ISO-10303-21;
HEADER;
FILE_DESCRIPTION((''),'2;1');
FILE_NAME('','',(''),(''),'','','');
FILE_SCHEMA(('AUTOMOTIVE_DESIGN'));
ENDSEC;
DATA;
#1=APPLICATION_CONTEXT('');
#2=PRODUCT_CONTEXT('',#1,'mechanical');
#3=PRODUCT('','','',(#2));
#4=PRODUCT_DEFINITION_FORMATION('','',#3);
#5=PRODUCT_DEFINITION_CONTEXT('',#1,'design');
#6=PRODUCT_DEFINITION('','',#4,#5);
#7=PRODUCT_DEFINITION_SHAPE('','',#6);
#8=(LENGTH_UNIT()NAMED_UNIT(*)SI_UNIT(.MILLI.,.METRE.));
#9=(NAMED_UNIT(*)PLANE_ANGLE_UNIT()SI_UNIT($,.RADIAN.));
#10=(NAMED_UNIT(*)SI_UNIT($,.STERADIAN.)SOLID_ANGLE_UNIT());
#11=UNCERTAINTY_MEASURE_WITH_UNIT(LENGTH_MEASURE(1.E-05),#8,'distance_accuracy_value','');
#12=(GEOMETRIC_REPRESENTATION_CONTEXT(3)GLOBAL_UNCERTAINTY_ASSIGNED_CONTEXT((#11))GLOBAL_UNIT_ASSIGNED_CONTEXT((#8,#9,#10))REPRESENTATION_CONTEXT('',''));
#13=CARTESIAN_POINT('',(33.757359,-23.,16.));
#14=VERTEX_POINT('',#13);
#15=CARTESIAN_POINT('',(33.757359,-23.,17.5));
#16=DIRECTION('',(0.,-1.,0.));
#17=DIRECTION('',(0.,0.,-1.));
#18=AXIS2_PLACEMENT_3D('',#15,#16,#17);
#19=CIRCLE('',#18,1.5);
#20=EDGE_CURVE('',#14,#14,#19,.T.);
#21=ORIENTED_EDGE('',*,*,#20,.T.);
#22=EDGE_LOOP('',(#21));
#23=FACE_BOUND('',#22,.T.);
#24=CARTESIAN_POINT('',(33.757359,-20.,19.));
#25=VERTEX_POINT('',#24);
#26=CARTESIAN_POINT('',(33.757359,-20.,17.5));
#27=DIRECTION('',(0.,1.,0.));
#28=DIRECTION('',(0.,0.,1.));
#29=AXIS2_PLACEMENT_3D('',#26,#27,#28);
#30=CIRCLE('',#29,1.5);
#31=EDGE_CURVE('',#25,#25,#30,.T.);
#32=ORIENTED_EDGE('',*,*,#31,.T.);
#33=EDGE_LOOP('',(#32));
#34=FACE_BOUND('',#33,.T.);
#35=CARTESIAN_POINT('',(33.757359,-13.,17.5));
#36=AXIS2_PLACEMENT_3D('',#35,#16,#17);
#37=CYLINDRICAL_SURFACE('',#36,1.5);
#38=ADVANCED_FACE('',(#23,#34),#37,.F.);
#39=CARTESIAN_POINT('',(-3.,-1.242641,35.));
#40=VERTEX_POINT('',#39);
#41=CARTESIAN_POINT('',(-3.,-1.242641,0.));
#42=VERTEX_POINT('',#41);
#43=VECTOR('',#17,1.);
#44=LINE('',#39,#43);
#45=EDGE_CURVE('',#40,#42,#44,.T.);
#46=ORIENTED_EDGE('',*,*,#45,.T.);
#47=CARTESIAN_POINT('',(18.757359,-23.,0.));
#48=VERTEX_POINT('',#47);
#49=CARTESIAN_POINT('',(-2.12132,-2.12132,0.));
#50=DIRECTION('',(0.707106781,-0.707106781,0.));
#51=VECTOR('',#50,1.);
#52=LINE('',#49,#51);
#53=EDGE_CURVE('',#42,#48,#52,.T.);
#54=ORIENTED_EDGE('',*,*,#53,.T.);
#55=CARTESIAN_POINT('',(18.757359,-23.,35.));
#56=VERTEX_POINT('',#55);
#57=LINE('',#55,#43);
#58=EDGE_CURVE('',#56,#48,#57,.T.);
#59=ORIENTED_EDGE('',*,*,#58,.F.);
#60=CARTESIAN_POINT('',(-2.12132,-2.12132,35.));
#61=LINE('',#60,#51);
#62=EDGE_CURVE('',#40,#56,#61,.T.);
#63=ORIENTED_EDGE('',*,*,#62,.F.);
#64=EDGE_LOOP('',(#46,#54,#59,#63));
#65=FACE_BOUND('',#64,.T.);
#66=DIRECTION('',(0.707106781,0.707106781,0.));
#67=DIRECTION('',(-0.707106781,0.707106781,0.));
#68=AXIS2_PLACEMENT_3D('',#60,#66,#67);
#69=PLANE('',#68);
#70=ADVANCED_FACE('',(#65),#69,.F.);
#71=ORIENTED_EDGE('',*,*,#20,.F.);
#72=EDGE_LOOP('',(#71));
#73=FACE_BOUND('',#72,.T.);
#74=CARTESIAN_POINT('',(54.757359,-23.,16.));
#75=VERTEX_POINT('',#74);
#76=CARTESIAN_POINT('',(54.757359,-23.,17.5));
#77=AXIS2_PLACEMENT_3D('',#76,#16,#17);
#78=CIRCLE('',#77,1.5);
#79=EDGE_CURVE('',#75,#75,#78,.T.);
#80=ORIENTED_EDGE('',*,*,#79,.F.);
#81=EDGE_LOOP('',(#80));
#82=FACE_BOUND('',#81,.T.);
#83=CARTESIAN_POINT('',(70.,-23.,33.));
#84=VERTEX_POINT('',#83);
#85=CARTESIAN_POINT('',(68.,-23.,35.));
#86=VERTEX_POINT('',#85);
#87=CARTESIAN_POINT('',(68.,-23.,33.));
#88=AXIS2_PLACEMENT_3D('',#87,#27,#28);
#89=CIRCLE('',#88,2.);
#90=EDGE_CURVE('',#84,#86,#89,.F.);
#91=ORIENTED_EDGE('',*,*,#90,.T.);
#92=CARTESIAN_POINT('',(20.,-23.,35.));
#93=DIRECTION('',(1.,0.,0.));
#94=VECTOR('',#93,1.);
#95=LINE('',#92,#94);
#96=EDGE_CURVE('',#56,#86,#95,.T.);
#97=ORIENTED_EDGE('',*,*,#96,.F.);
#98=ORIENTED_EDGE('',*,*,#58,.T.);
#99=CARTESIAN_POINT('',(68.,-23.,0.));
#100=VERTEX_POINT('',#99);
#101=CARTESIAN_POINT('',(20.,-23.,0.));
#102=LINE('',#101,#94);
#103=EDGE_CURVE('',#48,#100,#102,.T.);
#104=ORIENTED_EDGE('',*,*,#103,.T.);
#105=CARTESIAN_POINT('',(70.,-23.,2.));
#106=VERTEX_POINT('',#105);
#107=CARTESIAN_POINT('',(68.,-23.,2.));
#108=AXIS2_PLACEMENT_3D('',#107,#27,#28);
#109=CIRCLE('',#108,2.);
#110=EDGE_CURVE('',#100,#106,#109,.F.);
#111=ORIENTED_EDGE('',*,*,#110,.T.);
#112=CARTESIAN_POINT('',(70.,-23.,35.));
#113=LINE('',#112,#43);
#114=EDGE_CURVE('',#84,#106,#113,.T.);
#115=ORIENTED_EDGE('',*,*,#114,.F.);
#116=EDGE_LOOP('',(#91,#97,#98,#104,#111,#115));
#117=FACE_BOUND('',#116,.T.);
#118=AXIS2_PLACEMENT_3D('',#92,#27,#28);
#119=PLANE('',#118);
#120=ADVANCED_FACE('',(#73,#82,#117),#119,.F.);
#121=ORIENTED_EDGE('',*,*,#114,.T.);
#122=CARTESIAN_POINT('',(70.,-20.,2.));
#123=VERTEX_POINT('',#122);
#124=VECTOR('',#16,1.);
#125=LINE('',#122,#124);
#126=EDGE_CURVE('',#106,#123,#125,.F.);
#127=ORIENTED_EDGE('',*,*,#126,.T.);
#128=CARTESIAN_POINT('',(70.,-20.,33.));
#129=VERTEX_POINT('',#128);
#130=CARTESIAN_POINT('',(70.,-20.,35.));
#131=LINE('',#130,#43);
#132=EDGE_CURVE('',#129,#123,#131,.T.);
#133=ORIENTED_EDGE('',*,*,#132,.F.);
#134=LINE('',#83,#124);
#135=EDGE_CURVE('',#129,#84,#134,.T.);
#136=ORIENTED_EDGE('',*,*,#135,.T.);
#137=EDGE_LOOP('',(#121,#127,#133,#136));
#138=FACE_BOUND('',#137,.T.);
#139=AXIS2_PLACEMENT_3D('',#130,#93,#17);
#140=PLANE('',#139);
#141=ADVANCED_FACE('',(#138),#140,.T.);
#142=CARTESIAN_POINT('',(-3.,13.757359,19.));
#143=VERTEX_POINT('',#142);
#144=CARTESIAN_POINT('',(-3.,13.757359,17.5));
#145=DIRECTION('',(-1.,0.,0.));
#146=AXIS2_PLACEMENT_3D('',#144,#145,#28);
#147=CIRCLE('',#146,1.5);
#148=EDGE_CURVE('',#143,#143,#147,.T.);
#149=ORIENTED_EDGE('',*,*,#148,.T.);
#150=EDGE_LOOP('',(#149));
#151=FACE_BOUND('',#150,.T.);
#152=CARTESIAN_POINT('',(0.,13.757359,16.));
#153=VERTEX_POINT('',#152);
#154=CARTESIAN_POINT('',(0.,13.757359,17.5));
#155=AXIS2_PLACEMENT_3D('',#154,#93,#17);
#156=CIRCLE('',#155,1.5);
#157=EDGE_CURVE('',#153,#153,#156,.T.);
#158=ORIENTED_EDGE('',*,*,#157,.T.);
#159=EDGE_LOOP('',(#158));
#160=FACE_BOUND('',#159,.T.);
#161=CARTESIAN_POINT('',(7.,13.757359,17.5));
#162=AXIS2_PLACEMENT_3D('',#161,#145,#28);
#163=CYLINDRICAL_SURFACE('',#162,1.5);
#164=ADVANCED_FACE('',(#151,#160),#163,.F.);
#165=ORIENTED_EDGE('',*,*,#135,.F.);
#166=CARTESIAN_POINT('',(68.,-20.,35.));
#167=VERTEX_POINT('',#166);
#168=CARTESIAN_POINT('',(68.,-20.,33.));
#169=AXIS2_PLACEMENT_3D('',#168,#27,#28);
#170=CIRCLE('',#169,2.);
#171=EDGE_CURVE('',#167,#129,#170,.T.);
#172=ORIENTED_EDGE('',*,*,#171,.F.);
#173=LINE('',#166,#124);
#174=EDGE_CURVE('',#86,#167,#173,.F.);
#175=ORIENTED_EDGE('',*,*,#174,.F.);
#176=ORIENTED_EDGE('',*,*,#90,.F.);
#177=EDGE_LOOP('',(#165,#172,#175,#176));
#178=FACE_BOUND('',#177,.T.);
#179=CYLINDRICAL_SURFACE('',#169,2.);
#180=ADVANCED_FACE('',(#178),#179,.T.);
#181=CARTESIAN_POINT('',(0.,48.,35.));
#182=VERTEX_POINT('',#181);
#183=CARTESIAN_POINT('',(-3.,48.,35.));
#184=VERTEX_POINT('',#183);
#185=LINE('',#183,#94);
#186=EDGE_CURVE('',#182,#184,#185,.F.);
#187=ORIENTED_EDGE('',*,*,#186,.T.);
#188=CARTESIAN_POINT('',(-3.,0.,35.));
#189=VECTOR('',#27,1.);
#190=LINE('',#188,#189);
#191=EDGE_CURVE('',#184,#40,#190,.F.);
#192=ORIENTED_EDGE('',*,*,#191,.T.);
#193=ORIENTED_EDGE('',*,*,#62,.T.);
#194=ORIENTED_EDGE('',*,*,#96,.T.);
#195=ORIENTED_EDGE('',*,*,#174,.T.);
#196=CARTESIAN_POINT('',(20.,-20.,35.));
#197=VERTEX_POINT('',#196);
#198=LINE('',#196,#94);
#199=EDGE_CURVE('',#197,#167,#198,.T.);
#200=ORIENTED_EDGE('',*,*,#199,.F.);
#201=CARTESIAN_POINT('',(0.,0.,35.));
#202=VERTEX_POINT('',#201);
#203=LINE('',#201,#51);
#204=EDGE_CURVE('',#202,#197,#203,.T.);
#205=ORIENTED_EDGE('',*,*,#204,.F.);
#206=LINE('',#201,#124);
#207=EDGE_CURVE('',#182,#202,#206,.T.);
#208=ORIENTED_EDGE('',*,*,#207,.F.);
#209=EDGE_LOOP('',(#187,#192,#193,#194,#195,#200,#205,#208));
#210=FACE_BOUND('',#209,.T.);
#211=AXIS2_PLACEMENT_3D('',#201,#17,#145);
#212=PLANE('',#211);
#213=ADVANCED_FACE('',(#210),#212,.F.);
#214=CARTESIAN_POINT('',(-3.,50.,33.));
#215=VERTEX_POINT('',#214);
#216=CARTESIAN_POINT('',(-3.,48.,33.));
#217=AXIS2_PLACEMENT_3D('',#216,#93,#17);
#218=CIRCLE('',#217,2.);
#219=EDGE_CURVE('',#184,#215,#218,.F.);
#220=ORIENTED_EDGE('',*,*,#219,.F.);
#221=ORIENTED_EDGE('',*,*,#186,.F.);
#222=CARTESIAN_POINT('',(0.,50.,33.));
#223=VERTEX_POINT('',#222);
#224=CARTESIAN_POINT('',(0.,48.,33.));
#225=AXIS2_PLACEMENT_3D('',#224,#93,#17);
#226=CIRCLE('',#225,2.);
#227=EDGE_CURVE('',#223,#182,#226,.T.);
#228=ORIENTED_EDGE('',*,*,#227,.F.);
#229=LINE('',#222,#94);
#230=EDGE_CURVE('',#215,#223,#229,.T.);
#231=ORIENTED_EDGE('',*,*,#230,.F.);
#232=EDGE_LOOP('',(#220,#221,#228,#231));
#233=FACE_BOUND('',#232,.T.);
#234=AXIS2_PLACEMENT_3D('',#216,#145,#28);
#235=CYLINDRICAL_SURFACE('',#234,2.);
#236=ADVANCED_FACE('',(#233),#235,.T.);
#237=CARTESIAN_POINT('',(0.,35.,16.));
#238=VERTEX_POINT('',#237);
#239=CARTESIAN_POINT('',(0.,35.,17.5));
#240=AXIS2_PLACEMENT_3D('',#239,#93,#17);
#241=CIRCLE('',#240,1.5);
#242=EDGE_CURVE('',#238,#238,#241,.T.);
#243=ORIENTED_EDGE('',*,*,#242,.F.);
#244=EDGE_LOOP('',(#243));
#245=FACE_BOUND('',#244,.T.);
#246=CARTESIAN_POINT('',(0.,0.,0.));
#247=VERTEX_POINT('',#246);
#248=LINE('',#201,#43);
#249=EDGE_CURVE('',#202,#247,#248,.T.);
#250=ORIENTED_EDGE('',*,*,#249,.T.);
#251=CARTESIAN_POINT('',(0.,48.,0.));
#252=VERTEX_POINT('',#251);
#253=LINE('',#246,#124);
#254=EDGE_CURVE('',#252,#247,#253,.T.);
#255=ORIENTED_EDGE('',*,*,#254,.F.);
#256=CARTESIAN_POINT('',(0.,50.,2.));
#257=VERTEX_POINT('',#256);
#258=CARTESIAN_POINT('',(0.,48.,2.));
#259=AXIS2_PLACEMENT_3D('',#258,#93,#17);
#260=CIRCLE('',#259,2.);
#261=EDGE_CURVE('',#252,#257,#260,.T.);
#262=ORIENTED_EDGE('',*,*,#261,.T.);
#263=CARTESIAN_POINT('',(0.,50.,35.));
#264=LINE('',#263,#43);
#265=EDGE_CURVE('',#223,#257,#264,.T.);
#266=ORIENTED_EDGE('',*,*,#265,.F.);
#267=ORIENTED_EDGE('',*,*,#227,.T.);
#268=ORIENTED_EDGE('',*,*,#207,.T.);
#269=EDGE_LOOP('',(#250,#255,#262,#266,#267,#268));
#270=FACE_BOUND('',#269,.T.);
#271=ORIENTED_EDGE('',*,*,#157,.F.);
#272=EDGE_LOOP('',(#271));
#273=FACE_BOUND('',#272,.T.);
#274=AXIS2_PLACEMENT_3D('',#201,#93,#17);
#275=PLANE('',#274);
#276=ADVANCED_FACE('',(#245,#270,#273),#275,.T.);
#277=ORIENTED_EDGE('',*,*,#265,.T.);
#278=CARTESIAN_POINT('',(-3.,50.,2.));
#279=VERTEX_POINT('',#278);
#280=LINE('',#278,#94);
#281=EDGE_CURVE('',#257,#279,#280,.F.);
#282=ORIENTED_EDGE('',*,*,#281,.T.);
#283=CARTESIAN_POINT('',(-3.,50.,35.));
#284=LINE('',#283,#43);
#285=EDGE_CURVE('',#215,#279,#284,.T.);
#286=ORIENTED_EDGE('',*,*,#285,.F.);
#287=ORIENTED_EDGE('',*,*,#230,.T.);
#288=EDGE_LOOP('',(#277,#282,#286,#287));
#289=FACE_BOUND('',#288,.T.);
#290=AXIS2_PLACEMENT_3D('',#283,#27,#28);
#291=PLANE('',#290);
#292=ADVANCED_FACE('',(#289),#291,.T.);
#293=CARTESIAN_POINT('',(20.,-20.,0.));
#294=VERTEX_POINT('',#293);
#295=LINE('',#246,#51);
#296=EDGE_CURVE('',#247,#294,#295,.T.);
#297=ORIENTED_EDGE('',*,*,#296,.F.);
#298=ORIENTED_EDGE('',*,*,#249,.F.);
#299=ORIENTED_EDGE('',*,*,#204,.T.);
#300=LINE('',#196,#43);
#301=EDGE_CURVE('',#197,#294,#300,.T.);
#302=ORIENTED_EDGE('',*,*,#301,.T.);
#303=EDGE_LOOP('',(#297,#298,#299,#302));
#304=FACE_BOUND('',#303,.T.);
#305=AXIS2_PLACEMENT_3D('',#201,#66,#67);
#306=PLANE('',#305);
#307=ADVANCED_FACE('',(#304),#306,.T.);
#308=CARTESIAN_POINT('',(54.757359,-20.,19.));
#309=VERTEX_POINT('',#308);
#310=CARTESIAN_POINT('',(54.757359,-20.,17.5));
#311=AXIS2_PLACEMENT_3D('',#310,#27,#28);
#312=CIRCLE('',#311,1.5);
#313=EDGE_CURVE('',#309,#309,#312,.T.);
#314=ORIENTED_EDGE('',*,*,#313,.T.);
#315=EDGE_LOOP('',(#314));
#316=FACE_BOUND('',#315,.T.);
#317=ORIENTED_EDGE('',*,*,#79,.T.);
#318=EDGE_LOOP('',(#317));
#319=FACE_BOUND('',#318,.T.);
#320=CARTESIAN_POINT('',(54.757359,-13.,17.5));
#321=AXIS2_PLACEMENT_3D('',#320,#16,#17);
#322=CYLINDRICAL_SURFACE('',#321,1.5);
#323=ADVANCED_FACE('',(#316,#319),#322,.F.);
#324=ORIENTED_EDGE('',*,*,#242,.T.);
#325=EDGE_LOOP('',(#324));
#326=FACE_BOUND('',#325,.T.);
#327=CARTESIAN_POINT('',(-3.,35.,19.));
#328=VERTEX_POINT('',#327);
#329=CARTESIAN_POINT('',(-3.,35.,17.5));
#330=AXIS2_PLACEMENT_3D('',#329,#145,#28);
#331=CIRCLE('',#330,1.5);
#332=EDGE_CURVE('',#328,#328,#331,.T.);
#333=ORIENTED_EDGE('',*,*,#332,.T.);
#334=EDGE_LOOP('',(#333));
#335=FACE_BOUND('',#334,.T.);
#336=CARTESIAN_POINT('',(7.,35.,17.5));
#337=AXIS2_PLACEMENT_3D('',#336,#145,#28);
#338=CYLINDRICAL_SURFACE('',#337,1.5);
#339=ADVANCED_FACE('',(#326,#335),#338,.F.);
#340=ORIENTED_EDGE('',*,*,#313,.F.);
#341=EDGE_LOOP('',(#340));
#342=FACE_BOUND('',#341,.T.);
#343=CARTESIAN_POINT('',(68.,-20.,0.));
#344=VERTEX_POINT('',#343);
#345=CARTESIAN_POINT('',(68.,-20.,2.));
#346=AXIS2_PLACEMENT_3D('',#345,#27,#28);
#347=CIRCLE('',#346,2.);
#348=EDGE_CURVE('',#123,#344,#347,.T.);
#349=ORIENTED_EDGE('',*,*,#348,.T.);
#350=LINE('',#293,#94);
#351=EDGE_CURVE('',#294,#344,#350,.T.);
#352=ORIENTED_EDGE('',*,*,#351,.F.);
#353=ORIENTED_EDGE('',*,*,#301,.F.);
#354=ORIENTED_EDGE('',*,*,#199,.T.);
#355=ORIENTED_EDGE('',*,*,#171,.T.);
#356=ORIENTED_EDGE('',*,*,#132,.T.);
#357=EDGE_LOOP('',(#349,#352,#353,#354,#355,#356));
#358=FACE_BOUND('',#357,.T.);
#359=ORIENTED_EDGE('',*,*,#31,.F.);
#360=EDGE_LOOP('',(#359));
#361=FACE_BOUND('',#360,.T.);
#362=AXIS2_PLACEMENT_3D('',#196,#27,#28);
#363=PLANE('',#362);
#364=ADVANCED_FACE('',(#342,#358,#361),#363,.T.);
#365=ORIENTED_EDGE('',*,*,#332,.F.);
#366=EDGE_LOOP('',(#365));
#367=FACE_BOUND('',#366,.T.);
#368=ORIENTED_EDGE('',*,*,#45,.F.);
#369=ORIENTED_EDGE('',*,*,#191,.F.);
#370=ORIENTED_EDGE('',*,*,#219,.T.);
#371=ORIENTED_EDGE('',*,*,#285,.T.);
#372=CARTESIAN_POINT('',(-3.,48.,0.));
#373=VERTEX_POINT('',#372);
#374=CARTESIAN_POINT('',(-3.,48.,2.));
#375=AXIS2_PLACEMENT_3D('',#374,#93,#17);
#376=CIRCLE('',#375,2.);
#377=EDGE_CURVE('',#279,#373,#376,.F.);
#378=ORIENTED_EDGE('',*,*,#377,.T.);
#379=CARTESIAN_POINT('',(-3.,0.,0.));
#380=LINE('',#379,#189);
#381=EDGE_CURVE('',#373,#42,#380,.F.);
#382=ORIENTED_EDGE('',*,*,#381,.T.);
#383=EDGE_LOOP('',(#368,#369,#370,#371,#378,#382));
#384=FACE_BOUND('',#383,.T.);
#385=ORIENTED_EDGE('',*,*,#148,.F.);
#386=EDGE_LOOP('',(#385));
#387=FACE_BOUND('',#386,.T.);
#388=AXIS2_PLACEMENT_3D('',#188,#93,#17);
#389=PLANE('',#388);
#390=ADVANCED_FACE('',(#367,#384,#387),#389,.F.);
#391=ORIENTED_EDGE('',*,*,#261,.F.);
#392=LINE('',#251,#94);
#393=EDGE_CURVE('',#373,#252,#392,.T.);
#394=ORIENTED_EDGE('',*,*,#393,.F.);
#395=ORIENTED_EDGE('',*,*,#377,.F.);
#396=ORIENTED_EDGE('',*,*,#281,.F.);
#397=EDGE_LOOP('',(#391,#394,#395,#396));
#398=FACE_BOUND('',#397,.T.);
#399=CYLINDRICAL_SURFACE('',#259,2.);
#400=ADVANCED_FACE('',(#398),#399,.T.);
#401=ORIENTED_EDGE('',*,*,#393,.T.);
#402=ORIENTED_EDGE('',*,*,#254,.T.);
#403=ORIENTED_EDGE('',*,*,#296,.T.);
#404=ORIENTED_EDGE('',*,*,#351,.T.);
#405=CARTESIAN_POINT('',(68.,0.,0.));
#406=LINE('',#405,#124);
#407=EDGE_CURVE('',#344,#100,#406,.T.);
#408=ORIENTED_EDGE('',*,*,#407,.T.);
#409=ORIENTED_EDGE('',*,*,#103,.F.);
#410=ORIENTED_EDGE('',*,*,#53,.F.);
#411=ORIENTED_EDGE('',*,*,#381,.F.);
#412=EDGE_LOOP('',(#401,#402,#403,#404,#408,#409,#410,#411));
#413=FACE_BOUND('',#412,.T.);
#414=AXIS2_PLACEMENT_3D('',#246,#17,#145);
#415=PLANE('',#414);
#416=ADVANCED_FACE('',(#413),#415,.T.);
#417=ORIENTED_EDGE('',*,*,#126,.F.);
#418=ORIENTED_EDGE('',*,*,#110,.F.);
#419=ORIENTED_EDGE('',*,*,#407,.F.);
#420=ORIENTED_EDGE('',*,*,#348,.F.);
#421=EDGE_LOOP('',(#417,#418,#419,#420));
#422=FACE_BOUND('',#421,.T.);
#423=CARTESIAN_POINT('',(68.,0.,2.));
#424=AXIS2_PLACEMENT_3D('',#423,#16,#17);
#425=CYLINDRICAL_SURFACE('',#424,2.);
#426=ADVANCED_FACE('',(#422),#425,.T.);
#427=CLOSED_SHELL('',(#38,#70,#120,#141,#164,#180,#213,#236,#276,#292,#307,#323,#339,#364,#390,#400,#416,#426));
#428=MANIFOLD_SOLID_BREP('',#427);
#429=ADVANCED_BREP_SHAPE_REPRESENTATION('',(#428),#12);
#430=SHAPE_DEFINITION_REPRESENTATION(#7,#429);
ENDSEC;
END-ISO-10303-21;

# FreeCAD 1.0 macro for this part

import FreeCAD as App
import Part
import Sketcher

V = App.Vector
Q = App.Units.Quantity


def edges_at(feature, points):
    """Names of the edges that pass closest to the given points."""
    edges = feature.Shape.Edges
    near = lambda p: min(range(len(edges)), key=lambda i: edges[i].distToShape(Part.Vertex(*p))[0])
    return sorted({f"Edge{near(p) + 1}" for p in points})


def add_polygon(sketch, points):
    """Adds a closed chain of lines whose ends are joined by coincident constraints."""
    first, n = sketch.GeometryCount, len(points)
    for a, b in zip(points, points[1:] + points[:1]):
        sketch.addGeometry(Part.LineSegment(App.Vector(*a, 0), App.Vector(*b, 0)), False)
    for i in range(n):
        sketch.addConstraint(Sketcher.Constraint("Coincident", first + i, 2, first + (i + 1) % n, 1))

doc = App.newDocument("Part")
body = doc.addObject("PartDesign::Body", "Body")

sketch1 = body.newObject("Sketcher::SketchObject", "Sketch")
sketch1.AttachmentSupport = (doc.getObject("XY_Plane"), [""])
sketch1.MapMode = "FlatFace"
add_polygon(sketch1, [(70, -20), (20, -20), (0, 0), (0, 50), (-3, 50), (-3, -1.242641), (18.757359, -23), (70, -23)])
sketch1.addConstraint(Sketcher.Constraint("Horizontal", 0))
sketch1.addConstraint(Sketcher.Constraint("Vertical", 2))
sketch1.addConstraint(Sketcher.Constraint("Horizontal", 3))
sketch1.addConstraint(Sketcher.Constraint("Vertical", 4))
sketch1.addConstraint(Sketcher.Constraint("Horizontal", 6))
sketch1.addConstraint(Sketcher.Constraint("Vertical", 7))
sketch1.addConstraint(Sketcher.Constraint("Coincident", 1, 2, -1, 1))
sketch1.addConstraint(Sketcher.Constraint("Parallel", 1, 5))
sketch1.addConstraint(Sketcher.Constraint("Equal", 0, 2))
sketch1.addConstraint(Sketcher.Constraint("Equal", 6, 4))
sketch1.addConstraint(Sketcher.Constraint("Equal", 3, 7))
sketch1.addConstraint(Sketcher.Constraint("DistanceX", 0, 2, 0, 1, Q("50 mm")))
sketch1.addConstraint(Sketcher.Constraint("DistanceX", 3, 2, 3, 1, Q("3 mm")))
sketch1.addConstraint(Sketcher.Constraint("DistanceX", -1, 1, 0, 2, Q("20 mm")))
sketch1.addConstraint(Sketcher.Constraint("DistanceX", 6, 1, 6, 2, Q("51.242641 mm")))
pad1 = body.newObject("PartDesign::Pad", "Pad")
pad1.Profile = sketch1
pad1.Length = 35
doc.recompute()

fillet = body.newObject("PartDesign::Fillet", "Fillet")
fillet.Base = (pad1, edges_at(pad1, [(-1.5, 50, 35)]))
fillet.Radius = 2
doc.recompute()

fillet2 = body.newObject("PartDesign::Fillet", "Fillet001")
fillet2.Base = (fillet, edges_at(fillet, [(-1.5, 50, 0)]))
fillet2.Radius = 2
doc.recompute()

fillet3 = body.newObject("PartDesign::Fillet", "Fillet002")
fillet3.Base = (fillet2, edges_at(fillet2, [(70, -21.5, 35)]))
fillet3.Radius = 2
doc.recompute()

fillet4 = body.newObject("PartDesign::Fillet", "Fillet003")
fillet4.Base = (fillet3, edges_at(fillet3, [(70, -21.5, 0)]))
fillet4.Radius = 2

sketch2 = body.newObject("Sketcher::SketchObject", "Sketch001")
sketch2.AttachmentSupport = (doc.getObject("XZ_Plane"), [""])
sketch2.MapMode = "FlatFace"
sketch2.AttachmentOffset = App.Placement(V(0, 0, 23), App.Rotation())
sketch2.addGeometry(Part.Circle(V(33.757359, 17.5, 0), V(0, 0, 1), 1.5), False)
sketch2.addGeometry(Part.Circle(V(54.757359, 17.5, 0), V(0, 0, 1), 1.5), False)
sketch2.addConstraint(Sketcher.Constraint("Equal", 0, 1))
sketch2.addConstraint(Sketcher.Constraint("Horizontal", 0, 3, 1, 3))
sketch2.addConstraint(Sketcher.Constraint("Diameter", 0, Q("3 mm")))
sketch2.addConstraint(Sketcher.Constraint("DistanceX", 0, 3, 1, 3, Q("21 mm")))
sketch2.addConstraint(Sketcher.Constraint("DistanceY", -1, 1, 0, 3, Q("17.5 mm")))
sketch2.addConstraint(Sketcher.Constraint("DistanceX", -1, 1, 0, 3, Q("33.757359 mm")))
pocket1 = body.newObject("PartDesign::Pocket", "Pocket")
pocket1.Profile = sketch2
pocket1.Length = 10

sketch3 = body.newObject("Sketcher::SketchObject", "Sketch002")
sketch3.AttachmentSupport = (doc.getObject("YZ_Plane"), [""])
sketch3.MapMode = "FlatFace"
sketch3.AttachmentOffset = App.Placement(V(0, 0, -3), App.Rotation())
sketch3.addGeometry(Part.Circle(V(35, 17.5, 0), V(0, 0, 1), 1.5), False)
sketch3.addGeometry(Part.Circle(V(13.757359, 17.5, 0), V(0, 0, 1), 1.5), False)
sketch3.addConstraint(Sketcher.Constraint("Equal", 0, 1))
sketch3.addConstraint(Sketcher.Constraint("Horizontal", 0, 3, 1, 3))
sketch3.addConstraint(Sketcher.Constraint("Diameter", 0, Q("3 mm")))
sketch3.addConstraint(Sketcher.Constraint("DistanceX", -1, 1, 0, 3, Q("35 mm")))
sketch3.addConstraint(Sketcher.Constraint("DistanceY", -1, 1, 0, 3, Q("17.5 mm")))
sketch3.addConstraint(Sketcher.Constraint("DistanceX", -1, 1, 1, 3, Q("13.757359 mm")))
pocket2 = body.newObject("PartDesign::Pocket", "Pocket001")
pocket2.Profile = sketch3
pocket2.Length = 10
pocket2.Reversed = True

doc.recompute()
